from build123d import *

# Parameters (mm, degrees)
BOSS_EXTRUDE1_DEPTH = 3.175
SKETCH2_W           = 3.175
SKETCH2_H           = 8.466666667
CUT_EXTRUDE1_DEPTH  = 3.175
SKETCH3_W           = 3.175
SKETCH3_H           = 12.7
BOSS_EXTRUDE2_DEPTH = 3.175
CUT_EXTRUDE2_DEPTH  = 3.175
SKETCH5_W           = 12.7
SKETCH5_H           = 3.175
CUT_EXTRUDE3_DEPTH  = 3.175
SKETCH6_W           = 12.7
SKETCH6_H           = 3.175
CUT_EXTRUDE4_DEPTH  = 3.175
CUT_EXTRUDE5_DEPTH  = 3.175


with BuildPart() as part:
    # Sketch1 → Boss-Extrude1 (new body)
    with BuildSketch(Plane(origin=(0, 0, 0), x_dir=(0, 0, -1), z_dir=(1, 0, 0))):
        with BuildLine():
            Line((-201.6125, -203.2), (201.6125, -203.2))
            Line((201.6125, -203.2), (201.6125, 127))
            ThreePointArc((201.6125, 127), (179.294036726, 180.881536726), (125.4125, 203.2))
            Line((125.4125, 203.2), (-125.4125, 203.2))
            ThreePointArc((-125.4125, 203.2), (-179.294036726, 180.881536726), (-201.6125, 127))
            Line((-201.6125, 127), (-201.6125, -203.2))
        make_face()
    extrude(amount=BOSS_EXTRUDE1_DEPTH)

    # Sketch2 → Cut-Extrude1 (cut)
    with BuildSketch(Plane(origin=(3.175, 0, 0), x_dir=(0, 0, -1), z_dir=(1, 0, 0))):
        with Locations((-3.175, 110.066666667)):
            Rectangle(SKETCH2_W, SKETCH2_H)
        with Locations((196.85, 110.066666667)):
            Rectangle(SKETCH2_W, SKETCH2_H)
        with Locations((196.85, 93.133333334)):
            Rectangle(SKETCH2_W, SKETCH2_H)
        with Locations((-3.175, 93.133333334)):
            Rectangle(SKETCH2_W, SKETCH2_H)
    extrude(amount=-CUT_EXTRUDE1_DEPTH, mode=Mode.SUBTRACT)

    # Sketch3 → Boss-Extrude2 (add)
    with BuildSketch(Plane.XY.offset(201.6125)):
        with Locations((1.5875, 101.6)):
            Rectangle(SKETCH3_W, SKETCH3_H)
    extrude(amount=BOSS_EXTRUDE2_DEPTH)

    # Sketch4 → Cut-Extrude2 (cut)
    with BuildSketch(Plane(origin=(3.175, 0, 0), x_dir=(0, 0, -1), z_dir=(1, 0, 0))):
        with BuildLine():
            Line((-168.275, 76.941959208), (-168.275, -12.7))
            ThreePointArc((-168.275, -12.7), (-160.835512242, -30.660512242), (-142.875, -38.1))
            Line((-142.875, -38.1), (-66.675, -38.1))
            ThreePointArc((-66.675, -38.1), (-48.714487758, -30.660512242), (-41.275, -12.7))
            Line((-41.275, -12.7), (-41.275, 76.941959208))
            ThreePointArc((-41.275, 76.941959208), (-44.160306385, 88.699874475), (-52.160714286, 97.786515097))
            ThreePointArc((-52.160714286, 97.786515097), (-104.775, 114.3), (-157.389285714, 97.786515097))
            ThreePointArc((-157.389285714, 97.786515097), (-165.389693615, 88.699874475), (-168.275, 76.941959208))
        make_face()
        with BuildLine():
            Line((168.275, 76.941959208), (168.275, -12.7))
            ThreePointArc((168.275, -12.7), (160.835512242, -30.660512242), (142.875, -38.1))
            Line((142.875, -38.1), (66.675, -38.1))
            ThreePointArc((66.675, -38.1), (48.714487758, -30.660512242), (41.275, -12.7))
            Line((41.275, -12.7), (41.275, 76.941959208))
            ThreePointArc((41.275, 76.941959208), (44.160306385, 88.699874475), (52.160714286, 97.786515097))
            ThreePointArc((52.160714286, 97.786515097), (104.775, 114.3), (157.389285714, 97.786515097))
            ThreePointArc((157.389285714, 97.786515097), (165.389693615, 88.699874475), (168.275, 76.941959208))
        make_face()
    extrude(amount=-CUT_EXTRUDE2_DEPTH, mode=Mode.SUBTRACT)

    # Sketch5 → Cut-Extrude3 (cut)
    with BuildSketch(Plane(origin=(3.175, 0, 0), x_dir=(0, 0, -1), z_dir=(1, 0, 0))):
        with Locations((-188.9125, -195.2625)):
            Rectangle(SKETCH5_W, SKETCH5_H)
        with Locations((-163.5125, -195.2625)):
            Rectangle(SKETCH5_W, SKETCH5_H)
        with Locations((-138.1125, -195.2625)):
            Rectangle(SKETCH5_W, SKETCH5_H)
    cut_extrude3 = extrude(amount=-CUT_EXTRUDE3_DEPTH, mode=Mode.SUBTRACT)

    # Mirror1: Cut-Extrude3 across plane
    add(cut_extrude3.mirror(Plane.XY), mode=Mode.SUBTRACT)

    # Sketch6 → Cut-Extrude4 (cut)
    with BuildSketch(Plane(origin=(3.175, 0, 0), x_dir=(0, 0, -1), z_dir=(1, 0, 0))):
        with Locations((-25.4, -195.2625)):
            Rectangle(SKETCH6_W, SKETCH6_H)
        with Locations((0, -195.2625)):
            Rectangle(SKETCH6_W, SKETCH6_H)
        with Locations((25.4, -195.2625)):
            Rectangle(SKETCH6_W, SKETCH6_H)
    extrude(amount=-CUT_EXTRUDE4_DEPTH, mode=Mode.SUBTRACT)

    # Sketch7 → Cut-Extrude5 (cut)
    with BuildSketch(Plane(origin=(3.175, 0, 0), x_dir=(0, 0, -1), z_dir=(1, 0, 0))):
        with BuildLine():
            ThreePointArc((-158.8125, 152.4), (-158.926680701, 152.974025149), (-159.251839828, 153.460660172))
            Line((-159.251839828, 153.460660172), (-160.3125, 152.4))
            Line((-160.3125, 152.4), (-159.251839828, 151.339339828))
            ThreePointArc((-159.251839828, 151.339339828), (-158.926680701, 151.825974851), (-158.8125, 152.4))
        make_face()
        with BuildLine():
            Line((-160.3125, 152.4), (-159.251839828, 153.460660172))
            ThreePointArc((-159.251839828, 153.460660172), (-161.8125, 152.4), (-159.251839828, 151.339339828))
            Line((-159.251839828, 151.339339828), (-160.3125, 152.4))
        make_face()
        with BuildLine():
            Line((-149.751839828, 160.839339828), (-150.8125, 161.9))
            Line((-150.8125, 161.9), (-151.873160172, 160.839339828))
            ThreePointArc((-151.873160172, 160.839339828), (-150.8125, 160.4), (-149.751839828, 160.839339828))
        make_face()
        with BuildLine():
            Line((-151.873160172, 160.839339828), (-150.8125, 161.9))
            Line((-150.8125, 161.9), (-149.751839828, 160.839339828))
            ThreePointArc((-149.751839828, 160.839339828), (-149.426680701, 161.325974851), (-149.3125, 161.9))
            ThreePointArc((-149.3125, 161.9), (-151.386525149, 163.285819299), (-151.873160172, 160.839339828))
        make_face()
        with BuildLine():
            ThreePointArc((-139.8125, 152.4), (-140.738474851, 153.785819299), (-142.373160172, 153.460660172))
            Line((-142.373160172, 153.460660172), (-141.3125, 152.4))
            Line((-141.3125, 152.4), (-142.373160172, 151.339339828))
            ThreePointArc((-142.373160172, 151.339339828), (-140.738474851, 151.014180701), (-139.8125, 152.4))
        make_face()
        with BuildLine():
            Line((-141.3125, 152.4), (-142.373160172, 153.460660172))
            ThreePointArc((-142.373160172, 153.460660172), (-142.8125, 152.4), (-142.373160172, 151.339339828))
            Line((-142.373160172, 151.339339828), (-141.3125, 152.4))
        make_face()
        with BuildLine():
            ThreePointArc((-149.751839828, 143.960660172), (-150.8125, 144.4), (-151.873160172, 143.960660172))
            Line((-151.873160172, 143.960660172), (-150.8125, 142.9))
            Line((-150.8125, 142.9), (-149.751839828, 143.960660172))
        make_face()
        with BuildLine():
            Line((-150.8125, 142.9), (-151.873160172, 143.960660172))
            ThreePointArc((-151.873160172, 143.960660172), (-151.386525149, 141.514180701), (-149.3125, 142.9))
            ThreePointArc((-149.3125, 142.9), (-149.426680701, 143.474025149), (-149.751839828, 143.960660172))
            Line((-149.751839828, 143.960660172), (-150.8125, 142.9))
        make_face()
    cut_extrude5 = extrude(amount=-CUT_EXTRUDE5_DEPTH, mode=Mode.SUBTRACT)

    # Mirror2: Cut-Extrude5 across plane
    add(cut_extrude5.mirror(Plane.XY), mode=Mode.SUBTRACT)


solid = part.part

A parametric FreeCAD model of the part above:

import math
import FreeCAD as App
import Part
import Sketcher

V = App.Vector
Q = App.Units.Quantity


def add_polygon(sketch, points):
    """Adds a closed chain of lines whose ends are joined by coincident constraints."""
    first, n = sketch.GeometryCount, len(points)
    for a, b in zip(points, points[1:] + points[:1]):
        sketch.addGeometry(Part.LineSegment(App.Vector(*a, 0), App.Vector(*b, 0)), False)
    for i in range(n):
        sketch.addConstraint(Sketcher.Constraint("Coincident", first + i, 2, first + (i + 1) % n, 1))

doc = App.newDocument("Part")
body = doc.addObject("PartDesign::Body", "Body")

# Sketch on YZ plane
sketch1 = doc.addObject("Sketcher::SketchObject", "Sketch")
body.addObject(sketch1)
sketch1.AttachmentSupport = (doc.YZ_Plane, [""])
sketch1.MapMode = "FlatFace"
sketch1.addGeometry([
    Part.LineSegment(V(-203, 202, 0), V(-203, -202, 0)),  # 0
    Part.LineSegment(V(-203, -202, 0), V(127, -202, 0)),  # 1
    Part.ArcOfCircle(Part.Circle(V(127, -125, 0), V(0, 0, 1), 76), math.radians(-90), math.radians(0)),  # 2
    Part.LineSegment(V(203, -125, 0), V(203, 125, 0)),  # 3
    Part.ArcOfCircle(Part.Circle(V(127, 125, 0), V(0, 0, 1), 76), math.radians(0), math.radians(90)),  # 4
    Part.LineSegment(V(127, 202, 0), V(-203, 202, 0)),  # 5
], False)
sketch1.addConstraint([
    Sketcher.Constraint("Coincident", 0, 2, 1, 1),
    Sketcher.Constraint("Tangent", 1, 2, 2, 1),
    Sketcher.Constraint("Tangent", 2, 2, 3, 1),
    Sketcher.Constraint("Tangent", 3, 2, 4, 1),
    Sketcher.Constraint("Tangent", 4, 2, 5, 1),
    Sketcher.Constraint("Coincident", 5, 2, 0, 1),
    Sketcher.Constraint("Vertical", 0),
    Sketcher.Constraint("Horizontal", 1),
    Sketcher.Constraint("Vertical", 3),
    Sketcher.Constraint("Horizontal", 5),
    Sketcher.Constraint("Equal", 2, 4),
    Sketcher.Constraint("Radius", 2, Q("3 in")),
    Sketcher.Constraint("DistanceX", 1, 1, 1, 2, Q("13 in")),
    Sketcher.Constraint("DistanceX", -1, 1, 2, 3, Q("5 in")),
    Sketcher.Constraint("DistanceY", 0, 2, 0, 1, Q("15.875 in")),
    Sketcher.Constraint("DistanceY", 2, 3, -1, 1, Q("4.9375 in")),
])
pad1 = doc.addObject("PartDesign::Pad", "Pad")
body.addObject(pad1)
pad1.Profile = sketch1
pad1.Length = Q("0.125 in")

# Sketch on YZ plane
sketch2 = doc.addObject("Sketcher::SketchObject", "Sketch001")
body.addObject(sketch2)
sketch2.AttachmentSupport = (doc.YZ_Plane, [""])
sketch2.MapMode = "FlatFace"
sketch2.AttachmentOffset = App.Placement(V(0, 0, 0.125 * 25.4), App.Rotation())
add_polygon(sketch2, [(114.3, 4.8), (105.8, 4.8), (105.8, 1.6), (114.3, 1.6)])  # lines 0-3
add_polygon(sketch2, [(114.3, -195.3), (105.8, -195.3), (105.8, -198.4), (114.3, -198.4)])  # lines 4-7
add_polygon(sketch2, [(97.4, -195.3), (88.9, -195.3), (88.9, -198.4), (97.4, -198.4)])  # lines 8-11
add_polygon(sketch2, [(97.4, 4.8), (88.9, 4.8), (88.9, 1.6), (97.4, 1.6)])  # lines 12-15
sketch2.addConstraint([
    Sketcher.Constraint("Horizontal", 0),
    Sketcher.Constraint("Vertical", 1),
    Sketcher.Constraint("Horizontal", 2),
    Sketcher.Constraint("Vertical", 3),
    Sketcher.Constraint("Horizontal", 4),
    Sketcher.Constraint("Vertical", 5),
    Sketcher.Constraint("Horizontal", 6),
    Sketcher.Constraint("Vertical", 7),
    Sketcher.Constraint("Horizontal", 8),
    Sketcher.Constraint("Vertical", 9),
    Sketcher.Constraint("Horizontal", 10),
    Sketcher.Constraint("Vertical", 11),
    Sketcher.Constraint("Horizontal", 12),
    Sketcher.Constraint("Vertical", 13),
    Sketcher.Constraint("Horizontal", 14),
    Sketcher.Constraint("Vertical", 15),
    Sketcher.Constraint("Horizontal", 7, 2, 8, 2),
    Sketcher.Constraint("Horizontal", 6, 2, 9, 2),
    Sketcher.Constraint("Horizontal", 3, 2, 12, 2),
    Sketcher.Constraint("Horizontal", 2, 2, 13, 2),
    Sketcher.Constraint("Vertical", 1, 2, 4, 2),
    Sketcher.Constraint("Vertical", 3, 2, 6, 2),
    Sketcher.Constraint("Vertical", 9, 2, 12, 2),
    Sketcher.Constraint("Vertical", 11, 2, 14, 2),
    Sketcher.Constraint("Equal", 6, 8),
    Sketcher.Constraint("Equal", 3, 5),
    Sketcher.Constraint("DistanceY", 5, 2, 0, 2, Q("8 in")),
    Sketcher.Constraint("DistanceX", 8, 2, 7, 2, Q("1 in")),
    Sketcher.Constraint("DistanceX", -1, 1, 2, 2, Q("4.5 in")),
    Sketcher.Constraint("DistanceY", 1, 2, 1, 1, Q("0.125 in")),
    Sketcher.Constraint("DistanceY", -1, 1, 0, 2, Q("0.1875 in")),
    Sketcher.Constraint("DistanceX", 0, 2, 0, 1, 8.466667),
])
pocket1 = doc.addObject("PartDesign::Pocket", "Pocket")
body.addObject(pocket1)
pocket1.Profile = sketch2
pocket1.Length = Q("0.125 in")

# Sketch on XY plane
sketch3 = doc.addObject("Sketcher::SketchObject", "Sketch002")
body.addObject(sketch3)
sketch3.AttachmentSupport = (doc.XY_Plane, [""])
sketch3.MapMode = "FlatFace"
sketch3.AttachmentOffset = App.Placement(V(0, 0, 7.9375 * 25.4), App.Rotation())
add_polygon(sketch3, [(0, 108), (0, 95.2), (3.2, 95.2), (3.2, 108)])  # lines 0-3
sketch3.addConstraint([
    Sketcher.Constraint("Vertical", 0),
    Sketcher.Constraint("Horizontal", 1),
    Sketcher.Constraint("Vertical", 2),
    Sketcher.Constraint("Horizontal", 3),
    Sketcher.Constraint("PointOnObject", 0, 2, -2),
    Sketcher.Constraint("DistanceY", 0, 2, 0, 1, Q("0.5 in")),
    Sketcher.Constraint("DistanceX", 1, 1, 1, 2, Q("0.125 in")),
    Sketcher.Constraint("DistanceY", -1, 1, 0, 2, Q("3.75 in")),
])
pad2 = doc.addObject("PartDesign::Pad", "Pad001")
body.addObject(pad2)
pad2.Profile = sketch3
pad2.Length = Q("0.125 in")

# Sketch on YZ plane
sketch4 = doc.addObject("Sketcher::SketchObject", "Sketch003")
body.addObject(sketch4)
sketch4.AttachmentSupport = (doc.YZ_Plane, [""])
sketch4.MapMode = "FlatFace"
sketch4.AttachmentOffset = App.Placement(V(0, 0, 0.125 * 25.4), App.Rotation())
sketch4.addGeometry([
    Part.LineSegment(V(77, 168, 0), V(-13, 168, 0)),  # 0
    Part.ArcOfCircle(Part.Circle(V(-13, 143, 0), V(0, 0, 1), 25), math.radians(90), math.radians(180)),  # 1
    Part.LineSegment(V(-38, 143, 0), V(-38, 67, 0)),  # 2
    Part.ArcOfCircle(Part.Circle(V(-13, 67, 0), V(0, 0, 1), 25), math.radians(180), math.radians(270)),  # 3
    Part.LineSegment(V(-13, 41, 0), V(77, 41, 0)),  # 4
    Part.ArcOfCircle(Part.Circle(V(77, 67, 0), V(0, 0, 1), 25), math.radians(-90), math.radians(-35)),  # 5
    Part.ArcOfCircle(Part.Circle(V(22, 105, 0), V(0, 0, 1), 92), math.radians(-35), math.radians(35)),  # 6
    Part.ArcOfCircle(Part.Circle(V(77, 143, 0), V(0, 0, 1), 25), math.radians(35), math.radians(90)),  # 7
    Part.LineSegment(V(-13, -168, 0), V(77, -168, 0)),  # 8
    Part.ArcOfCircle(Part.Circle(V(77, -143, 0), V(0, 0, 1), 25), math.radians(-90), math.radians(-35)),  # 9
    Part.ArcOfCircle(Part.Circle(V(22, -105, 0), V(0, 0, 1), 92), math.radians(-35), math.radians(35)),  # 10
    Part.ArcOfCircle(Part.Circle(V(77, -67, 0), V(0, 0, 1), 25), math.radians(35), math.radians(90)),  # 11
    Part.LineSegment(V(77, -41, 0), V(-13, -41, 0)),  # 12
    Part.ArcOfCircle(Part.Circle(V(-13, -67, 0), V(0, 0, 1), 25), math.radians(90), math.radians(180)),  # 13
    Part.LineSegment(V(-38, -67, 0), V(-38, -143, 0)),  # 14
    Part.ArcOfCircle(Part.Circle(V(-13, -143, 0), V(0, 0, 1), 25), math.radians(180), math.radians(270)),  # 15
], False)
sketch4.addConstraint([
    Sketcher.Constraint("Tangent", 0, 2, 1, 1),
    Sketcher.Constraint("Tangent", 1, 2, 2, 1),
    Sketcher.Constraint("Tangent", 2, 2, 3, 1),
    Sketcher.Constraint("Tangent", 3, 2, 4, 1),
    Sketcher.Constraint("Tangent", 4, 2, 5, 1),
    Sketcher.Constraint("Tangent", 5, 2, 6, 1),
    Sketcher.Constraint("Tangent", 6, 2, 7, 1),
    Sketcher.Constraint("Tangent", 7, 2, 0, 1),
    Sketcher.Constraint("Tangent", 8, 2, 9, 1),
    Sketcher.Constraint("Tangent", 9, 2, 10, 1),
    Sketcher.Constraint("Tangent", 10, 2, 11, 1),
    Sketcher.Constraint("Tangent", 11, 2, 12, 1),
    Sketcher.Constraint("Tangent", 12, 2, 13, 1),
    Sketcher.Constraint("Tangent", 13, 2, 14, 1),
    Sketcher.Constraint("Tangent", 14, 2, 15, 1),
    Sketcher.Constraint("Tangent", 15, 2, 8, 1),
    Sketcher.Constraint("Horizontal", 0),
    Sketcher.Constraint("Vertical", 2),
    Sketcher.Constraint("Horizontal", 4),
    Sketcher.Constraint("Horizontal", 8),
    Sketcher.Constraint("Horizontal", 12),
    Sketcher.Constraint("Vertical", 14),
    Sketcher.Constraint("Equal", 1, 3),
    Sketcher.Constraint("Equal", 3, 5),
    Sketcher.Constraint("Equal", 5, 7),
    Sketcher.Constraint("Equal", 7, 9),
    Sketcher.Constraint("Equal", 6, 10),
    Sketcher.Constraint("Equal", 9, 11),
    Sketcher.Constraint("Equal", 11, 13),
    Sketcher.Constraint("Equal", 13, 15),
    Sketcher.Constraint("Symmetric", 7, 3, 9, 3, -1),
    Sketcher.Constraint("Symmetric", 5, 3, 11, 3, -1),
    Sketcher.Constraint("Vertical", 5, 3, 7, 3),
    Sketcher.Constraint("Vertical", 3, 3, 13, 3),
    Sketcher.Constraint("Radius", 1, Q("1 in")),
    Sketcher.Constraint("DistanceY", 2, 2, 2, 1, Q("3 in")),
    Sketcher.Constraint("Radius", 6, Q("3.625 in")),
    Sketcher.Constraint("DistanceX", 1, 3, -1, 1, Q("0.5 in")),
    Sketcher.Constraint("DistanceY", 9, 3, 5, 3, Q("8.25 in")),
    Sketcher.Constraint("DistanceX", -1, 1, 6, 3, Q("0.875 in")),
])
pocket2 = doc.addObject("PartDesign::Pocket", "Pocket001")
body.addObject(pocket2)
pocket2.Profile = sketch4
pocket2.Length = Q("0.125 in")

# Sketch on YZ plane
sketch5 = doc.addObject("Sketcher::SketchObject", "Sketch004")
body.addObject(sketch5)
sketch5.AttachmentSupport = (doc.YZ_Plane, [""])
sketch5.MapMode = "FlatFace"
sketch5.AttachmentOffset = App.Placement(V(0, 0, 0.125 * 25.4), App.Rotation())
add_polygon(sketch5, [(-193.7, 195.3), (-196.8, 195.3), (-196.8, 182.6), (-193.7, 182.6)])  # lines 0-3
add_polygon(sketch5, [(-193.7, 169.9), (-196.8, 169.9), (-196.8, 157.2), (-193.7, 157.2)])  # lines 4-7
add_polygon(sketch5, [(-193.7, 144.5), (-196.8, 144.5), (-196.8, 131.8), (-193.7, 131.8)])  # lines 8-11
sketch5.addConstraint([
    Sketcher.Constraint("Horizontal", 0),
    Sketcher.Constraint("Vertical", 1),
    Sketcher.Constraint("Horizontal", 2),
    Sketcher.Constraint("Vertical", 3),
    Sketcher.Constraint("Horizontal", 4),
    Sketcher.Constraint("Vertical", 5),
    Sketcher.Constraint("Horizontal", 6),
    Sketcher.Constraint("Vertical", 7),
    Sketcher.Constraint("Horizontal", 8),
    Sketcher.Constraint("Vertical", 9),
    Sketcher.Constraint("Horizontal", 10),
    Sketcher.Constraint("Vertical", 11),
    Sketcher.Constraint("Vertical", 1, 2, 4, 2),
    Sketcher.Constraint("Vertical", 3, 2, 6, 2),
    Sketcher.Constraint("Vertical", 5, 2, 8, 2),
    Sketcher.Constraint("Vertical", 7, 2, 10, 2),
    Sketcher.Constraint("Equal", 3, 5),
    Sketcher.Constraint("Equal", 7, 9),
    Sketcher.Constraint("DistanceY", 1, 2, 1, 1, Q("0.5 in")),
    Sketcher.Constraint("DistanceY", 4, 2, 0, 2, Q("1 in")),
    Sketcher.Constraint("DistanceY", 8, 2, 4, 2, Q("1 in")),
    Sketcher.Constraint("DistanceX", 0, 2, 0, 1, Q("0.125 in")),
    Sketcher.Constraint("DistanceX", 0, 2, -1, 1, Q("7.75 in")),
    Sketcher.Constraint("DistanceY", -1, 1, 0, 2, Q("7.6875 in")),
])
pocket3 = doc.addObject("PartDesign::Pocket", "Pocket002")
body.addObject(pocket3)
pocket3.Profile = sketch5
pocket3.Length = Q("0.125 in")
doc.recompute()

mirrored = doc.addObject("PartDesign::Mirrored", "Mirrored")
body.addObject(mirrored)
mirrored.Originals = [pocket3]
mirrored.MirrorPlane = (doc.XY_Plane, [""])
body.Tip = mirrored

# Sketch on YZ plane
sketch6 = doc.addObject("Sketcher::SketchObject", "Sketch005")
body.addObject(sketch6)
sketch6.AttachmentSupport = (doc.YZ_Plane, [""])
sketch6.MapMode = "FlatFace"
sketch6.AttachmentOffset = App.Placement(V(0, 0, 0.125 * 25.4), App.Rotation())
add_polygon(sketch6, [(-193.7, 31.8), (-196.8, 31.8), (-196.8, 19.1), (-193.7, 19.1)])  # lines 0-3
add_polygon(sketch6, [(-193.7, 6.3), (-196.8, 6.3), (-196.8, -6.3), (-193.7, -6.3)])  # lines 4-7
add_polygon(sketch6, [(-193.7, -19.1), (-196.8, -19.1), (-196.8, -31.8), (-193.7, -31.8)])  # lines 8-11
sketch6.addConstraint([
    Sketcher.Constraint("Horizontal", 0),
    Sketcher.Constraint("Vertical", 1),
    Sketcher.Constraint("Horizontal", 2),
    Sketcher.Constraint("Vertical", 3),
    Sketcher.Constraint("Horizontal", 4),
    Sketcher.Constraint("Vertical", 5),
    Sketcher.Constraint("Horizontal", 6),
    Sketcher.Constraint("Vertical", 7),
    Sketcher.Constraint("Horizontal", 8),
    Sketcher.Constraint("Vertical", 9),
    Sketcher.Constraint("Horizontal", 10),
    Sketcher.Constraint("Vertical", 11),
    Sketcher.Constraint("Symmetric", 1, 2, 8, 2, -1),
    Sketcher.Constraint("Symmetric", 3, 2, 10, 2, -1),
    Sketcher.Constraint("Vertical", 1, 2, 4, 2),
    Sketcher.Constraint("Vertical", 3, 2, 6, 2),
    Sketcher.Constraint("Equal", 3, 5),
    Sketcher.Constraint("DistanceY", 1, 2, 1, 1, Q("0.5 in")),
    Sketcher.Constraint("DistanceY", 4, 2, 0, 2, Q("1 in")),
    Sketcher.Constraint("DistanceY", 8, 2, 4, 2, Q("1 in")),
    Sketcher.Constraint("DistanceX", 0, 2, 0, 1, Q("0.125 in")),
    Sketcher.Constraint("DistanceX", 0, 2, -1, 1, Q("7.75 in")),
])
pocket4 = doc.addObject("PartDesign::Pocket", "Pocket003")
body.addObject(pocket4)
pocket4.Profile = sketch6
pocket4.Length = Q("0.125 in")

# Sketch on YZ plane
sketch7 = doc.addObject("Sketcher::SketchObject", "Sketch006")
body.addObject(sketch7)
sketch7.AttachmentSupport = (doc.YZ_Plane, [""])
sketch7.MapMode = "FlatFace"
sketch7.AttachmentOffset = App.Placement(V(0, 0, 0.125 * 25.4), App.Rotation())
sketch7.addGeometry([
    Part.ArcOfCircle(Part.Circle(V(152.4, 160.3, 0), V(0, 0, 1), 1.5), math.radians(-90), math.radians(-45)),  # 0
    Part.ArcOfCircle(Part.Circle(V(152.4, 160.3, 0), V(0, 0, 1), 1.5), math.radians(-45), math.radians(225)),  # 1
    Part.ArcOfCircle(Part.Circle(V(152.4, 160.3, 0), V(0, 0, 1), 1.5), math.radians(-135), math.radians(-90)),  # 2
    Part.ArcOfCircle(Part.Circle(V(161.9, 150.8, 0), V(0, 0, 1), 1.5), math.radians(135), math.radians(225)),  # 3
    Part.ArcOfCircle(Part.Circle(V(161.9, 150.8, 0), V(0, 0, 1), 1.5), math.radians(-135), math.radians(-90)),  # 4
    Part.ArcOfCircle(Part.Circle(V(161.9, 150.8, 0), V(0, 0, 1), 1.5), math.radians(-90), math.radians(135)),  # 5
    Part.ArcOfCircle(Part.Circle(V(152.4, 141.3, 0), V(0, 0, 1), 1.5), math.radians(-90), math.radians(45)),  # 6
    Part.ArcOfCircle(Part.Circle(V(152.4, 141.3, 0), V(0, 0, 1), 1.5), math.radians(45), math.radians(135)),  # 7
    Part.ArcOfCircle(Part.Circle(V(152.4, 141.3, 0), V(0, 0, 1), 1.5), math.radians(135), math.radians(270)),  # 8
    Part.ArcOfCircle(Part.Circle(V(142.9, 150.8, 0), V(0, 0, 1), 1.5), math.radians(-45), math.radians(45)),  # 9
    Part.ArcOfCircle(Part.Circle(V(142.9, 150.8, 0), V(0, 0, 1), 1.5), math.radians(45), math.radians(270)),  # 10
    Part.ArcOfCircle(Part.Circle(V(142.9, 150.8, 0), V(0, 0, 1), 1.5), math.radians(-90), math.radians(-45)),  # 11
], False)
sketch7.addConstraint([
    Sketcher.Constraint("Tangent", 0, 2, 1, 1),
    Sketcher.Constraint("Tangent", 1, 2, 2, 1),
    Sketcher.Constraint("Tangent", 2, 2, 0, 1),
    Sketcher.Constraint("Tangent", 3, 2, 4, 1),
    Sketcher.Constraint("Tangent", 4, 2, 5, 1),
    Sketcher.Constraint("Tangent", 5, 2, 3, 1),
    Sketcher.Constraint("Tangent", 6, 2, 7, 1),
    Sketcher.Constraint("Tangent", 7, 2, 8, 1),
    Sketcher.Constraint("Tangent", 8, 2, 6, 1),
    Sketcher.Constraint("Tangent", 9, 2, 10, 1),
    Sketcher.Constraint("Tangent", 10, 2, 11, 1),
    Sketcher.Constraint("Tangent", 11, 2, 9, 1),
    Sketcher.Constraint("Equal", 2, 3),
    Sketcher.Constraint("Equal", 5, 6),
    Sketcher.Constraint("Equal", 8, 9),
    Sketcher.Constraint("Horizontal", 5, 3, 9, 3),
    Sketcher.Constraint("Horizontal", 0, 2, 1, 2),
    Sketcher.Constraint("Horizontal", 6, 2, 7, 2),
    Sketcher.Constraint("Horizontal", 5, 2, 9, 2),
    Sketcher.Constraint("Horizontal", 3, 2, 11, 2),
    Sketcher.Constraint("Vertical", 2, 3, 6, 3),
    Sketcher.Constraint("Vertical", 8, 3, 2, 2),
    Sketcher.Constraint("Vertical", 5, 3, 4, 2),
    Sketcher.Constraint("Vertical", 3, 2, 5, 2),
    Sketcher.Constraint("Vertical", 0, 2, 6, 2),
    Sketcher.Constraint("Vertical", 2, 2, 8, 2),
    Sketcher.Constraint("Vertical", 11, 3, 10, 2),
    Sketcher.Constraint("DistanceX", -1, 1, 0, 3, Q("6 in")),
    Sketcher.Constraint("Radius", 0, 1.5),
    Sketcher.Constraint("DistanceY", -1, 1, 3, 3, Q("5.9375 in")),
    Sketcher.Constraint("DistanceY", -1, 1, 0, 3, 160.3125),
    Sketcher.Constraint("DistanceX", -1, 1, 3, 3, 161.9),
    Sketcher.Constraint("DistanceY", -1, 1, 6, 3, 141.3125),
    Sketcher.Constraint("DistanceX", -1, 1, 9, 3, 142.9),
    Sketcher.Constraint("DistanceX", -1, 1, 0, 2, 153.46066),
    Sketcher.Constraint("DistanceX", -1, 1, 3, 2, 160.83934),
])
pocket5 = doc.addObject("PartDesign::Pocket", "Pocket004")
body.addObject(pocket5)
pocket5.Profile = sketch7
pocket5.Length = Q("0.125 in")
doc.recompute()

mirrored2 = doc.addObject("PartDesign::Mirrored", "Mirrored001")
body.addObject(mirrored2)
mirrored2.Originals = [pocket5]
mirrored2.MirrorPlane = (doc.XY_Plane, [""])
body.Tip = mirrored2

doc.recompute()
